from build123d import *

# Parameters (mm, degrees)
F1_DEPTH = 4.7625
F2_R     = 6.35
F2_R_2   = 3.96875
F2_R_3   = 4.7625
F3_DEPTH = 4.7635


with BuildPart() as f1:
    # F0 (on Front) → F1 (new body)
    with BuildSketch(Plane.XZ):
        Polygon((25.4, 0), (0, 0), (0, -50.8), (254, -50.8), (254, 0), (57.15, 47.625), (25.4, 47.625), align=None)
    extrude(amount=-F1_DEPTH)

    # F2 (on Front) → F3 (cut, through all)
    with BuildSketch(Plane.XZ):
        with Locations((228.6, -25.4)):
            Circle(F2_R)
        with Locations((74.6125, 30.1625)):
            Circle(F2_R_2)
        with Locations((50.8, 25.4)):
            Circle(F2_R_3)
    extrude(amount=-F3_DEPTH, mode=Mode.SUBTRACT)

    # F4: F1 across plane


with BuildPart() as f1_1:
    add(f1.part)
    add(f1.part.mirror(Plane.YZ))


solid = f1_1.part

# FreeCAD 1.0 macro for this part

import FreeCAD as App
import Part
import Sketcher

V = App.Vector
Q = App.Units.Quantity

doc = App.newDocument("Part")
params = doc.addObject("Spreadsheet::Sheet", "Params")
for row, (alias, value) in enumerate([
    ("sketch1_width", "1 in"),
    ("sketch1_width2", "10 in"),
    ("sketch1_height", "2 in"),
    ("sketch1_width3", "1.25 in"),
    ("sketch1_height2", "1.875 in"),
    ("pad1_length", "0.1875 in"),
    ("sketch2_diameter", "0.5 in"),
    ("sketch2_diameter2", "0.3125 in"),
    ("sketch2_diameter3", "0.375 in"),
], start=1):
    params.set(f"A{row}", alias)
    params.set(f"B{row}", "=" + value)
    params.setAlias(f"B{row}", alias)

body = doc.addObject("PartDesign::Body", "Body")

# Sketch on XZ plane
sketch1 = body.newObject("Sketcher::SketchObject", "Sketch")
sketch1.AttachmentSupport = (doc.getObject("XZ_Plane"), [""])
sketch1.MapMode = "FlatFace"
sketch1.addGeometry([
    Part.LineSegment(V(25, 0, 0), V(0, 0, 0)),  # 0
    Part.LineSegment(V(0, 0, 0), V(0, -51, 0)),  # 1
    Part.LineSegment(V(0, -51, 0), V(254, -51, 0)),  # 2
    Part.LineSegment(V(254, -51, 0), V(254, 0, 0)),  # 3
    Part.LineSegment(V(254, 0, 0), V(57, 48, 0)),  # 4
    Part.LineSegment(V(57, 48, 0), V(25, 48, 0)),  # 5
    Part.LineSegment(V(25, 48, 0), V(25, 0, 0)),  # 6
], False)
sketch1.addConstraint([
    Sketcher.Constraint("Coincident", 0, 2, 1, 1),
    Sketcher.Constraint("Coincident", 1, 2, 2, 1),
    Sketcher.Constraint("Coincident", 2, 2, 3, 1),
    Sketcher.Constraint("Coincident", 3, 2, 4, 1),
    Sketcher.Constraint("Coincident", 4, 2, 5, 1),
    Sketcher.Constraint("Coincident", 5, 2, 6, 1),
    Sketcher.Constraint("Coincident", 6, 2, 0, 1),
    Sketcher.Constraint("Horizontal", 0),
    Sketcher.Constraint("Vertical", 1),
    Sketcher.Constraint("Horizontal", 2),
    Sketcher.Constraint("Vertical", 3),
    Sketcher.Constraint("Horizontal", 5),
    Sketcher.Constraint("Vertical", 6),
    Sketcher.Constraint("Coincident", 0, 2, -1, 1),
    Sketcher.Constraint("PointOnObject", 3, 2, -1),
    Sketcher.Constraint("DistanceX", 0, 2, 0, 1, Q("1 in")),
    Sketcher.Constraint("DistanceX", 2, 1, 2, 2, Q("10 in")),
    Sketcher.Constraint("DistanceY", 1, 2, 1, 1, Q("2 in")),
    Sketcher.Constraint("DistanceX", 5, 2, 5, 1, Q("1.25 in")),
    Sketcher.Constraint("DistanceY", 6, 2, 6, 1, Q("1.875 in")),
])
sketch1.setExpression("Constraints[15]", "Params.sketch1_width")
sketch1.setExpression("Constraints[16]", "Params.sketch1_width2")
sketch1.setExpression("Constraints[17]", "Params.sketch1_height")
sketch1.setExpression("Constraints[18]", "Params.sketch1_width3")
sketch1.setExpression("Constraints[19]", "Params.sketch1_height2")
pad1 = body.newObject("PartDesign::Pad", "Pad")
pad1.Profile = sketch1
pad1.setExpression("Length", "Params.pad1_length")
pad1.Reversed = True

# Sketch on XZ plane
sketch2 = body.newObject("Sketcher::SketchObject", "Sketch001")
sketch2.AttachmentSupport = (doc.getObject("XZ_Plane"), [""])
sketch2.MapMode = "FlatFace"
sketch2.addGeometry([
    Part.Circle(V(228.6, -25.4, 0), V(0, 0, 1), 6.3),
    Part.Circle(V(74.6, 30.2, 0), V(0, 0, 1), 4),
    Part.Circle(V(50.8, 25.4, 0), V(0, 0, 1), 4.8),
], False)
sketch2.addConstraint([
    Sketcher.Constraint("Diameter", 0, Q("0.5 in")),
    Sketcher.Constraint("Diameter", 1, Q("0.3125 in")),
    Sketcher.Constraint("Diameter", 2, Q("0.375 in")),
    Sketcher.Constraint("DistanceX", -1, 1, 0, 3, Q("9 in")),
    Sketcher.Constraint("DistanceY", 0, 3, -1, 1, Q("1 in")),
    Sketcher.Constraint("DistanceX", -1, 1, 2, 3, Q("2 in")),
    Sketcher.Constraint("DistanceY", -1, 1, 2, 3, Q("1 in")),
    Sketcher.Constraint("DistanceX", -1, 1, 1, 3, Q("2.9375 in")),
    Sketcher.Constraint("DistanceY", -1, 1, 1, 3, Q("1.1875 in")),
])
sketch2.setExpression("Constraints[0]", "Params.sketch2_diameter")
sketch2.setExpression("Constraints[1]", "Params.sketch2_diameter2")
sketch2.setExpression("Constraints[2]", "Params.sketch2_diameter3")
pocket1 = body.newObject("PartDesign::Pocket", "Pocket")
pocket1.Profile = sketch2
pocket1.Type = "ThroughAll"
body2 = doc.addObject("PartDesign::Body", "Body001")
doc.recompute()

body2.BaseFeature = body
doc.recompute()

mirroring = doc.addObject("Part::Mirroring", "Mirroring")
mirroring.Source = body
mirroring.Base = V(0, 0, 0)
mirroring.Normal = V(1, 0, 0)
body3 = doc.addObject("PartDesign::Body", "Body002")
body3.BaseFeature = mirroring
boolean = body2.newObject("PartDesign::Boolean", "Boolean")
boolean.Type = "Fuse"
boolean.addObjects([body3])
doc.recompute()
mirroring.Visibility = False

doc.recompute()
